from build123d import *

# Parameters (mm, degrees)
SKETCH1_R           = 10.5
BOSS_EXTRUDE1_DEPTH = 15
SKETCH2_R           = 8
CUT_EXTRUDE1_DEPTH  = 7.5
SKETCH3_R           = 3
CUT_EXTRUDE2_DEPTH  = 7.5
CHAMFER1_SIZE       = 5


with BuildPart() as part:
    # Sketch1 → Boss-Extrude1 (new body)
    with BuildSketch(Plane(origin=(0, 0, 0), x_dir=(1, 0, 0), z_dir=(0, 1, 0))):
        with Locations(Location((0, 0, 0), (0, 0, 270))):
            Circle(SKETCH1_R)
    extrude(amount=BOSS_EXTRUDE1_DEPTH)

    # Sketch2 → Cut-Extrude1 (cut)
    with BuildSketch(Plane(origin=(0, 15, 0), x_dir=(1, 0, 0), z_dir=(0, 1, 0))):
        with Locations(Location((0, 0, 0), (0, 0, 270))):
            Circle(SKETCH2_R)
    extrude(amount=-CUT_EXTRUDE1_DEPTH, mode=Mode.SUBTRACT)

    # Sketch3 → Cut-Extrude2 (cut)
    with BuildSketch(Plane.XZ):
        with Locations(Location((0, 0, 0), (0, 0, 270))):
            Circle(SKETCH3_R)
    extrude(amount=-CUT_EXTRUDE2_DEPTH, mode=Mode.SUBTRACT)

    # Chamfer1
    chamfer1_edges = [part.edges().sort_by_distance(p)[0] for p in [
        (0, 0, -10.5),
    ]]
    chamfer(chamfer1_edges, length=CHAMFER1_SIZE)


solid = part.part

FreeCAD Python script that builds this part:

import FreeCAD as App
import Part
import Sketcher

V = App.Vector


def edges_at(feature, points):
    """Names of the edges that pass closest to the given points."""
    edges = feature.Shape.Edges
    near = lambda p: min(range(len(edges)), key=lambda i: edges[i].distToShape(Part.Vertex(*p))[0])
    return sorted({f"Edge{near(p) + 1}" for p in points})

doc = App.newDocument("Part")
params = doc.addObject("Spreadsheet::Sheet", "Params")
for row, (alias, value) in enumerate([
    ("sketch1_diameter", "21 mm"),
    ("pad1_length", "15 mm"),
    ("sketch2_diameter", "16 mm"),
    ("pocket1_length", "7.5 mm"),
    ("sketch3_diameter", "6 mm"),
    ("pocket2_length", "7.5 mm"),
    ("chamfer_size", "5 mm"),
], start=1):
    params.set(f"A{row}", alias)
    params.set(f"B{row}", "=" + value)
    params.setAlias(f"B{row}", alias)

body = doc.addObject("PartDesign::Body", "Body")

sketch1 = body.newObject("Sketcher::SketchObject", "Sketch")
sketch1.AttachmentSupport = (doc.getObject("XZ_Plane"), [""])
sketch1.MapMode = "FlatFace"
sketch1.addGeometry(Part.Circle(V(0, 0, 0), V(0, 0, 1), 10), False)
sketch1.addConstraint([
    Sketcher.Constraint("Coincident", 0, 3, -1, 1),
    Sketcher.Constraint("Diameter", 0, 21.0),
])
sketch1.setExpression("Constraints[1]", "Params.sketch1_diameter")
pad1 = body.newObject("PartDesign::Pad", "Pad")
pad1.Profile = sketch1
pad1.setExpression("Length", "Params.pad1_length")
pad1.Reversed = True

sketch2 = body.newObject("Sketcher::SketchObject", "Sketch001")
sketch2.AttachmentSupport = (doc.getObject("XZ_Plane"), [""])
sketch2.MapMode = "FlatFace"
sketch2.AttachmentOffset = App.Placement(V(0, 0, -15), App.Rotation())
sketch2.addGeometry(Part.Circle(V(0, 0, 0), V(0, 0, 1), 8), False)
sketch2.addConstraint([
    Sketcher.Constraint("Coincident", 0, 3, -1, 1),
    Sketcher.Constraint("Diameter", 0, 16.0),
])
sketch2.setExpression("Constraints[1]", "Params.sketch2_diameter")
pocket1 = body.newObject("PartDesign::Pocket", "Pocket")
pocket1.Profile = sketch2
pocket1.setExpression("Length", "Params.pocket1_length")
pocket1.Reversed = True

sketch3 = body.newObject("Sketcher::SketchObject", "Sketch002")
sketch3.AttachmentSupport = (doc.getObject("XZ_Plane"), [""])
sketch3.MapMode = "FlatFace"
sketch3.addGeometry(Part.Circle(V(0, 0, 0), V(0, 0, 1), 3), False)
sketch3.addConstraint([
    Sketcher.Constraint("Coincident", 0, 3, -1, 1),
    Sketcher.Constraint("Diameter", 0, 6.0),
])
sketch3.setExpression("Constraints[1]", "Params.sketch3_diameter")
pocket2 = body.newObject("PartDesign::Pocket", "Pocket001")
pocket2.Profile = sketch3
pocket2.setExpression("Length", "Params.pocket2_length")
doc.recompute()

chamfer = body.newObject("PartDesign::Chamfer", "Chamfer")
chamfer.Base = (pocket2, edges_at(pocket2, [(0, 0, -10.5)]))
chamfer.setExpression("Size", "Params.chamfer_size")

doc.recompute()
